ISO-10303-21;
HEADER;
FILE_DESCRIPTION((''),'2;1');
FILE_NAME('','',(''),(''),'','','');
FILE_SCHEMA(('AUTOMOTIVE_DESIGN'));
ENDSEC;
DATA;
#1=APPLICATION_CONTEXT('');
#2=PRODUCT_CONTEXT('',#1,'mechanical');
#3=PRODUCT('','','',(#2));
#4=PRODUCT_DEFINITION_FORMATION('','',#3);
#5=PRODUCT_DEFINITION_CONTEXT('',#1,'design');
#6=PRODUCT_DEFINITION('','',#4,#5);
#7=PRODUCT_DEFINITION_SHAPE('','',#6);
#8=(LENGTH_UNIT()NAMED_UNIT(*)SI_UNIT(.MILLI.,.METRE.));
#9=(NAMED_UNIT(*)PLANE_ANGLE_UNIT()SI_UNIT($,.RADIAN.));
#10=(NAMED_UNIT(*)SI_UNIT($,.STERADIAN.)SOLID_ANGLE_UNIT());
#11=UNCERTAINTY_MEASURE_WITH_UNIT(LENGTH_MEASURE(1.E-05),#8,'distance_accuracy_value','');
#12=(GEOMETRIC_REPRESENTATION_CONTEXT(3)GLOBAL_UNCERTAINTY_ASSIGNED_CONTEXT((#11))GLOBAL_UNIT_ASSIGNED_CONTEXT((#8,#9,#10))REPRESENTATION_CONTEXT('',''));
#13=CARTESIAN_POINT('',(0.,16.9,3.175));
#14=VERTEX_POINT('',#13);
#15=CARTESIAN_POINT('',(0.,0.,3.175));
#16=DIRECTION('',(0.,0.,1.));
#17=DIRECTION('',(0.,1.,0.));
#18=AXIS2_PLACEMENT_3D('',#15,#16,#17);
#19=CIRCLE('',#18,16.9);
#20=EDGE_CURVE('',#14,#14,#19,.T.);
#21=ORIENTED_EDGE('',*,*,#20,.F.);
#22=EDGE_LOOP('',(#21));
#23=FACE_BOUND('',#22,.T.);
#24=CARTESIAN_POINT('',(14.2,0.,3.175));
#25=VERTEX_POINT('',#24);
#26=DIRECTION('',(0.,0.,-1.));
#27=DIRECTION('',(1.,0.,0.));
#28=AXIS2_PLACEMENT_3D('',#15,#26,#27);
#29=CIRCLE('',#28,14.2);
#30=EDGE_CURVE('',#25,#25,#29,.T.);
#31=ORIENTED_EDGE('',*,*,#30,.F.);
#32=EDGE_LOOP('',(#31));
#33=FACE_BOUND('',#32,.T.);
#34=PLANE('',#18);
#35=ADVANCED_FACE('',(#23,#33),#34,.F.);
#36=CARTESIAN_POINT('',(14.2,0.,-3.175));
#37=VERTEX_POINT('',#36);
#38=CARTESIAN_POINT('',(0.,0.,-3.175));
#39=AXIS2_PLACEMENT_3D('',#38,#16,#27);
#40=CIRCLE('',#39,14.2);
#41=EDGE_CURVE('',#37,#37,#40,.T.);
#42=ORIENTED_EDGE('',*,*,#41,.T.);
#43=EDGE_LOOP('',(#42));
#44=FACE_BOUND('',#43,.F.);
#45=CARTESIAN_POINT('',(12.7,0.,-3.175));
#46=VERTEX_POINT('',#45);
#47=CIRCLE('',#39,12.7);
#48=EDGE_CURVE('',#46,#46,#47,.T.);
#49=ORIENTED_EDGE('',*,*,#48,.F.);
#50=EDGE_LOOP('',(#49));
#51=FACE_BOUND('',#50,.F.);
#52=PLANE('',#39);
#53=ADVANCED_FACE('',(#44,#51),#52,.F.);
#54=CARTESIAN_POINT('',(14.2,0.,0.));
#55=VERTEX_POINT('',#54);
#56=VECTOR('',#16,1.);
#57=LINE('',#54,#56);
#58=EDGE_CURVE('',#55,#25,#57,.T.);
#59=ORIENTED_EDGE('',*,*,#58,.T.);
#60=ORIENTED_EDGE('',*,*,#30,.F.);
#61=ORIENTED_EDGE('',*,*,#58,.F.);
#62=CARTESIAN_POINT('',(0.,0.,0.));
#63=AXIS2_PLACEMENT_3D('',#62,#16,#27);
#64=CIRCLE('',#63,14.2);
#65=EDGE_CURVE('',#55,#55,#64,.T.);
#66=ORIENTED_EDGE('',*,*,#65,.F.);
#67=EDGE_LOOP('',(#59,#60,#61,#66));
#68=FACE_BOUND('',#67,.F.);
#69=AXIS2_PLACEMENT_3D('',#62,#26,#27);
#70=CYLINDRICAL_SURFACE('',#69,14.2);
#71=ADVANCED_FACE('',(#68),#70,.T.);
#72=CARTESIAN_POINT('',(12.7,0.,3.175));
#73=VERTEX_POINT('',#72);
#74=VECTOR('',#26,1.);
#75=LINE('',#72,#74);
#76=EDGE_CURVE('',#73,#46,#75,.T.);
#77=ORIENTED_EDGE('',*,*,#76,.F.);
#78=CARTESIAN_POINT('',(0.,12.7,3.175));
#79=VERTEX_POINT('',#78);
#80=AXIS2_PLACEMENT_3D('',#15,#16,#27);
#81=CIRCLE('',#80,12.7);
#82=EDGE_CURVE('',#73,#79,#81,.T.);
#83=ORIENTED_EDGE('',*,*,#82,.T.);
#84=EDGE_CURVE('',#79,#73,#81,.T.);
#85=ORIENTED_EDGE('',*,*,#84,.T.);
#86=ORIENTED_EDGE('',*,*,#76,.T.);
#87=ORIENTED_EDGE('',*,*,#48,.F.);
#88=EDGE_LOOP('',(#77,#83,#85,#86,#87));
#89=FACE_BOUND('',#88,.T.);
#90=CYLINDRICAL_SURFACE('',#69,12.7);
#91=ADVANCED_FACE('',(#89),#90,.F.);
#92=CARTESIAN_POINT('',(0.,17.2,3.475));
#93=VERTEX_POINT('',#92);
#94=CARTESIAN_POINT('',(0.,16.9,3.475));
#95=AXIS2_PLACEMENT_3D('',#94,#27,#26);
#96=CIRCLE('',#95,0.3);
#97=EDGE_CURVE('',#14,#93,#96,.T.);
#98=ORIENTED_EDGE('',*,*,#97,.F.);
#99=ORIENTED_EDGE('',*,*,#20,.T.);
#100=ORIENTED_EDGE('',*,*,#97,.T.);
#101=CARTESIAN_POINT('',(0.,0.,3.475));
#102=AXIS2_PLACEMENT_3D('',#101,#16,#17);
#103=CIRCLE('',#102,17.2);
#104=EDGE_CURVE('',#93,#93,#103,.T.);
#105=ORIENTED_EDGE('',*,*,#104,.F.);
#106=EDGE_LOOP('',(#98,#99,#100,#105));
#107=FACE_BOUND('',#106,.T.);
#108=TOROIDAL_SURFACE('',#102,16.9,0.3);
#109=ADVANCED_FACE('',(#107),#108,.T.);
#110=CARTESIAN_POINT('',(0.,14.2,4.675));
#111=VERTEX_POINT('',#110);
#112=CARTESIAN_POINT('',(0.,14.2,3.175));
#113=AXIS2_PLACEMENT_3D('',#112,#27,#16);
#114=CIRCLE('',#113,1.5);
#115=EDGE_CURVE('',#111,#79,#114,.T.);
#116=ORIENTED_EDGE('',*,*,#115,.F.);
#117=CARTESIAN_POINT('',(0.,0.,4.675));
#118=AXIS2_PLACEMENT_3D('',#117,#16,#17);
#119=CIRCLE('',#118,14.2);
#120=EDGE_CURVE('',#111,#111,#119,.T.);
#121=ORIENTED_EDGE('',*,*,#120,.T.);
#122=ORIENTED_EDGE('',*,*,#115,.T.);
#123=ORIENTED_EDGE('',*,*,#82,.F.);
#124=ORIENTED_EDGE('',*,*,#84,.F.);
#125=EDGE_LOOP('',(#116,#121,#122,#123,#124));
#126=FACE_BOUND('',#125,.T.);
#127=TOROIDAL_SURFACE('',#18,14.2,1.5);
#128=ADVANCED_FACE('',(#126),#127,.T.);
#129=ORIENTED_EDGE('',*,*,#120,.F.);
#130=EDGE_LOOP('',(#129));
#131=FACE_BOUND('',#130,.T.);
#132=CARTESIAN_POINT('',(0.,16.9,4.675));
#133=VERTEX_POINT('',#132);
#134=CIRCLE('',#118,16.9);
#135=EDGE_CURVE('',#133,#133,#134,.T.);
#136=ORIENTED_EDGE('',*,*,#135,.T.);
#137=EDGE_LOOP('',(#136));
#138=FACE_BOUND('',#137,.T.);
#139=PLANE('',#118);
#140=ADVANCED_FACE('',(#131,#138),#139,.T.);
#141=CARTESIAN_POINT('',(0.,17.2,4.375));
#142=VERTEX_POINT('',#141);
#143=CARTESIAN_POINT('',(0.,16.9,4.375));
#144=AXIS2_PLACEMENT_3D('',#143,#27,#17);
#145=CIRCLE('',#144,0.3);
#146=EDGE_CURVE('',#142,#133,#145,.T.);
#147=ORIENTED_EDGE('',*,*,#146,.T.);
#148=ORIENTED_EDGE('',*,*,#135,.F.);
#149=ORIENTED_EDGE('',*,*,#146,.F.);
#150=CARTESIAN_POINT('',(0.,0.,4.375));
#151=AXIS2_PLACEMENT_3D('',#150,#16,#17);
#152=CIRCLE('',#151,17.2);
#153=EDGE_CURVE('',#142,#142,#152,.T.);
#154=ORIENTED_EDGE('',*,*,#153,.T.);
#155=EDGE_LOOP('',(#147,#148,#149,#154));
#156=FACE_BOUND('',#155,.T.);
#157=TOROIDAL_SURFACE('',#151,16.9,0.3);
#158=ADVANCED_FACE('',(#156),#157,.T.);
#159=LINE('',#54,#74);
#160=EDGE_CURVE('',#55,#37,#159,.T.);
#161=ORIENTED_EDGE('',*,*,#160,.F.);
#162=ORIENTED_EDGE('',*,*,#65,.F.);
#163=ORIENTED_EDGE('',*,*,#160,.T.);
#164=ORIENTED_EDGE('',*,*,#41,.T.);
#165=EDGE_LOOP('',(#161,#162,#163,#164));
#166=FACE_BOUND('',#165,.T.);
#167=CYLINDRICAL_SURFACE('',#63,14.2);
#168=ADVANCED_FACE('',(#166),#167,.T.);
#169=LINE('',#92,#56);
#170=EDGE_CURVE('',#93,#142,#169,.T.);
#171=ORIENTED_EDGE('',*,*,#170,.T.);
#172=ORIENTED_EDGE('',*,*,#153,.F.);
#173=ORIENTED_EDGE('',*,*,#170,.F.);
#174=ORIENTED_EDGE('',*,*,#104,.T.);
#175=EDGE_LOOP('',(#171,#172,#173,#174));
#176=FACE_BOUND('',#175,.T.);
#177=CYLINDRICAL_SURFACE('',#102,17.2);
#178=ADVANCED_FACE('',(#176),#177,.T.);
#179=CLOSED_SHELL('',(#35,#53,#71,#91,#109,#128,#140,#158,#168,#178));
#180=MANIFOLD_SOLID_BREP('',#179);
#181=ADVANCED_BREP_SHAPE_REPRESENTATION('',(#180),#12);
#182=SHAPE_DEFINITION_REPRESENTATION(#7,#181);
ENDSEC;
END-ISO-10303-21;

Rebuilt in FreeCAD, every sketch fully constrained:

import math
import FreeCAD as App
import Part
import Sketcher
from FreeCAD import Vector
Q = App.Units.Quantity

doc = App.newDocument("Part")
body = doc.addObject("PartDesign::Body", "Body")

# Sketch on XY plane
sketch1 = body.newObject("Sketcher::SketchObject", "Sketch")
sketch1.AttachmentSupport = (doc.getObject("XY_Plane"), [""])
sketch1.MapMode = "FlatFace"
sketch1.addGeometry([
    Part.Circle(Vector(0, 0, 0), Vector(0, 0, 1), 14.2),
    Part.Circle(Vector(0, 0, 0), Vector(0, 0, 1), 12.7),
], False)
sketch1.addConstraint([
    Sketcher.Constraint("Coincident", 0, 3, -1, 1),
    Sketcher.Constraint("Coincident", 1, 3, -1, 1),
    Sketcher.Constraint("Diameter", 0, Q("28.4 mm")),
    Sketcher.Constraint("Diameter", 1, Q("25.4 mm")),
])
pad1 = body.newObject("PartDesign::Pad", "Pad")
pad1.Profile = sketch1
pad1.Length = 6.35
pad1.Midplane = True

# Sketch on YZ plane
sketch2 = body.newObject("Sketcher::SketchObject", "Sketch001")
sketch2.AttachmentSupport = (doc.getObject("YZ_Plane"), [""])
sketch2.MapMode = "FlatFace"
sketch2.addGeometry([
    Part.LineSegment(Vector(12.7, 3.175, 0), Vector(16.9, 3.175, 0)),  # 0
    Part.ArcOfCircle(Part.Circle(Vector(16.9, 3.475, 0), Vector(0, 0, 1), 0.3), math.radians(-90), math.radians(0)),  # 1
    Part.LineSegment(Vector(17.2, 3.475, 0), Vector(17.2, 4.375, 0)),  # 2
    Part.ArcOfCircle(Part.Circle(Vector(16.9, 4.375, 0), Vector(0, 0, 1), 0.3), math.radians(0), math.radians(90)),  # 3
    Part.LineSegment(Vector(16.9, 4.675, 0), Vector(14.2, 4.675, 0)),  # 4
    Part.ArcOfCircle(Part.Circle(Vector(14.2, 3.175, 0), Vector(0, 0, 1), 1.5), math.radians(90), math.radians(180)),  # 5
], False)
sketch2.addConstraint([
    Sketcher.Constraint("Tangent", 0, 2, 1, 1),
    Sketcher.Constraint("Tangent", 1, 2, 2, 1),
    Sketcher.Constraint("Tangent", 2, 2, 3, 1),
    Sketcher.Constraint("Tangent", 3, 2, 4, 1),
    Sketcher.Constraint("Tangent", 4, 2, 5, 1),
    Sketcher.Constraint("Coincident", 5, 2, 0, 1),
    Sketcher.Constraint("Horizontal", 0),
    Sketcher.Constraint("Vertical", 2),
    Sketcher.Constraint("Horizontal", 4),
    Sketcher.Constraint("Equal", 1, 3),
    Sketcher.Constraint("Horizontal", 5, 3, 0, 2),
    Sketcher.Constraint("Radius", 1, Q("0.3 mm")),
    Sketcher.Constraint("Radius", 5, Q("1.5 mm")),
    Sketcher.Constraint("DistanceX", 5, 3, 1, 2, Q("3 mm")),
    Sketcher.Constraint("DistanceX", -1, 1, 1, 3, Q("16.9 mm")),
    Sketcher.Constraint("DistanceY", -1, 1, 1, 3, Q("3.475 mm")),
])
revolution = body.newObject("PartDesign::Revolution", "Revolution")
revolution.Profile = sketch2
revolution.ReferenceAxis = (sketch2, ["V_Axis"])
revolution.Angle = 360

doc.recompute()
